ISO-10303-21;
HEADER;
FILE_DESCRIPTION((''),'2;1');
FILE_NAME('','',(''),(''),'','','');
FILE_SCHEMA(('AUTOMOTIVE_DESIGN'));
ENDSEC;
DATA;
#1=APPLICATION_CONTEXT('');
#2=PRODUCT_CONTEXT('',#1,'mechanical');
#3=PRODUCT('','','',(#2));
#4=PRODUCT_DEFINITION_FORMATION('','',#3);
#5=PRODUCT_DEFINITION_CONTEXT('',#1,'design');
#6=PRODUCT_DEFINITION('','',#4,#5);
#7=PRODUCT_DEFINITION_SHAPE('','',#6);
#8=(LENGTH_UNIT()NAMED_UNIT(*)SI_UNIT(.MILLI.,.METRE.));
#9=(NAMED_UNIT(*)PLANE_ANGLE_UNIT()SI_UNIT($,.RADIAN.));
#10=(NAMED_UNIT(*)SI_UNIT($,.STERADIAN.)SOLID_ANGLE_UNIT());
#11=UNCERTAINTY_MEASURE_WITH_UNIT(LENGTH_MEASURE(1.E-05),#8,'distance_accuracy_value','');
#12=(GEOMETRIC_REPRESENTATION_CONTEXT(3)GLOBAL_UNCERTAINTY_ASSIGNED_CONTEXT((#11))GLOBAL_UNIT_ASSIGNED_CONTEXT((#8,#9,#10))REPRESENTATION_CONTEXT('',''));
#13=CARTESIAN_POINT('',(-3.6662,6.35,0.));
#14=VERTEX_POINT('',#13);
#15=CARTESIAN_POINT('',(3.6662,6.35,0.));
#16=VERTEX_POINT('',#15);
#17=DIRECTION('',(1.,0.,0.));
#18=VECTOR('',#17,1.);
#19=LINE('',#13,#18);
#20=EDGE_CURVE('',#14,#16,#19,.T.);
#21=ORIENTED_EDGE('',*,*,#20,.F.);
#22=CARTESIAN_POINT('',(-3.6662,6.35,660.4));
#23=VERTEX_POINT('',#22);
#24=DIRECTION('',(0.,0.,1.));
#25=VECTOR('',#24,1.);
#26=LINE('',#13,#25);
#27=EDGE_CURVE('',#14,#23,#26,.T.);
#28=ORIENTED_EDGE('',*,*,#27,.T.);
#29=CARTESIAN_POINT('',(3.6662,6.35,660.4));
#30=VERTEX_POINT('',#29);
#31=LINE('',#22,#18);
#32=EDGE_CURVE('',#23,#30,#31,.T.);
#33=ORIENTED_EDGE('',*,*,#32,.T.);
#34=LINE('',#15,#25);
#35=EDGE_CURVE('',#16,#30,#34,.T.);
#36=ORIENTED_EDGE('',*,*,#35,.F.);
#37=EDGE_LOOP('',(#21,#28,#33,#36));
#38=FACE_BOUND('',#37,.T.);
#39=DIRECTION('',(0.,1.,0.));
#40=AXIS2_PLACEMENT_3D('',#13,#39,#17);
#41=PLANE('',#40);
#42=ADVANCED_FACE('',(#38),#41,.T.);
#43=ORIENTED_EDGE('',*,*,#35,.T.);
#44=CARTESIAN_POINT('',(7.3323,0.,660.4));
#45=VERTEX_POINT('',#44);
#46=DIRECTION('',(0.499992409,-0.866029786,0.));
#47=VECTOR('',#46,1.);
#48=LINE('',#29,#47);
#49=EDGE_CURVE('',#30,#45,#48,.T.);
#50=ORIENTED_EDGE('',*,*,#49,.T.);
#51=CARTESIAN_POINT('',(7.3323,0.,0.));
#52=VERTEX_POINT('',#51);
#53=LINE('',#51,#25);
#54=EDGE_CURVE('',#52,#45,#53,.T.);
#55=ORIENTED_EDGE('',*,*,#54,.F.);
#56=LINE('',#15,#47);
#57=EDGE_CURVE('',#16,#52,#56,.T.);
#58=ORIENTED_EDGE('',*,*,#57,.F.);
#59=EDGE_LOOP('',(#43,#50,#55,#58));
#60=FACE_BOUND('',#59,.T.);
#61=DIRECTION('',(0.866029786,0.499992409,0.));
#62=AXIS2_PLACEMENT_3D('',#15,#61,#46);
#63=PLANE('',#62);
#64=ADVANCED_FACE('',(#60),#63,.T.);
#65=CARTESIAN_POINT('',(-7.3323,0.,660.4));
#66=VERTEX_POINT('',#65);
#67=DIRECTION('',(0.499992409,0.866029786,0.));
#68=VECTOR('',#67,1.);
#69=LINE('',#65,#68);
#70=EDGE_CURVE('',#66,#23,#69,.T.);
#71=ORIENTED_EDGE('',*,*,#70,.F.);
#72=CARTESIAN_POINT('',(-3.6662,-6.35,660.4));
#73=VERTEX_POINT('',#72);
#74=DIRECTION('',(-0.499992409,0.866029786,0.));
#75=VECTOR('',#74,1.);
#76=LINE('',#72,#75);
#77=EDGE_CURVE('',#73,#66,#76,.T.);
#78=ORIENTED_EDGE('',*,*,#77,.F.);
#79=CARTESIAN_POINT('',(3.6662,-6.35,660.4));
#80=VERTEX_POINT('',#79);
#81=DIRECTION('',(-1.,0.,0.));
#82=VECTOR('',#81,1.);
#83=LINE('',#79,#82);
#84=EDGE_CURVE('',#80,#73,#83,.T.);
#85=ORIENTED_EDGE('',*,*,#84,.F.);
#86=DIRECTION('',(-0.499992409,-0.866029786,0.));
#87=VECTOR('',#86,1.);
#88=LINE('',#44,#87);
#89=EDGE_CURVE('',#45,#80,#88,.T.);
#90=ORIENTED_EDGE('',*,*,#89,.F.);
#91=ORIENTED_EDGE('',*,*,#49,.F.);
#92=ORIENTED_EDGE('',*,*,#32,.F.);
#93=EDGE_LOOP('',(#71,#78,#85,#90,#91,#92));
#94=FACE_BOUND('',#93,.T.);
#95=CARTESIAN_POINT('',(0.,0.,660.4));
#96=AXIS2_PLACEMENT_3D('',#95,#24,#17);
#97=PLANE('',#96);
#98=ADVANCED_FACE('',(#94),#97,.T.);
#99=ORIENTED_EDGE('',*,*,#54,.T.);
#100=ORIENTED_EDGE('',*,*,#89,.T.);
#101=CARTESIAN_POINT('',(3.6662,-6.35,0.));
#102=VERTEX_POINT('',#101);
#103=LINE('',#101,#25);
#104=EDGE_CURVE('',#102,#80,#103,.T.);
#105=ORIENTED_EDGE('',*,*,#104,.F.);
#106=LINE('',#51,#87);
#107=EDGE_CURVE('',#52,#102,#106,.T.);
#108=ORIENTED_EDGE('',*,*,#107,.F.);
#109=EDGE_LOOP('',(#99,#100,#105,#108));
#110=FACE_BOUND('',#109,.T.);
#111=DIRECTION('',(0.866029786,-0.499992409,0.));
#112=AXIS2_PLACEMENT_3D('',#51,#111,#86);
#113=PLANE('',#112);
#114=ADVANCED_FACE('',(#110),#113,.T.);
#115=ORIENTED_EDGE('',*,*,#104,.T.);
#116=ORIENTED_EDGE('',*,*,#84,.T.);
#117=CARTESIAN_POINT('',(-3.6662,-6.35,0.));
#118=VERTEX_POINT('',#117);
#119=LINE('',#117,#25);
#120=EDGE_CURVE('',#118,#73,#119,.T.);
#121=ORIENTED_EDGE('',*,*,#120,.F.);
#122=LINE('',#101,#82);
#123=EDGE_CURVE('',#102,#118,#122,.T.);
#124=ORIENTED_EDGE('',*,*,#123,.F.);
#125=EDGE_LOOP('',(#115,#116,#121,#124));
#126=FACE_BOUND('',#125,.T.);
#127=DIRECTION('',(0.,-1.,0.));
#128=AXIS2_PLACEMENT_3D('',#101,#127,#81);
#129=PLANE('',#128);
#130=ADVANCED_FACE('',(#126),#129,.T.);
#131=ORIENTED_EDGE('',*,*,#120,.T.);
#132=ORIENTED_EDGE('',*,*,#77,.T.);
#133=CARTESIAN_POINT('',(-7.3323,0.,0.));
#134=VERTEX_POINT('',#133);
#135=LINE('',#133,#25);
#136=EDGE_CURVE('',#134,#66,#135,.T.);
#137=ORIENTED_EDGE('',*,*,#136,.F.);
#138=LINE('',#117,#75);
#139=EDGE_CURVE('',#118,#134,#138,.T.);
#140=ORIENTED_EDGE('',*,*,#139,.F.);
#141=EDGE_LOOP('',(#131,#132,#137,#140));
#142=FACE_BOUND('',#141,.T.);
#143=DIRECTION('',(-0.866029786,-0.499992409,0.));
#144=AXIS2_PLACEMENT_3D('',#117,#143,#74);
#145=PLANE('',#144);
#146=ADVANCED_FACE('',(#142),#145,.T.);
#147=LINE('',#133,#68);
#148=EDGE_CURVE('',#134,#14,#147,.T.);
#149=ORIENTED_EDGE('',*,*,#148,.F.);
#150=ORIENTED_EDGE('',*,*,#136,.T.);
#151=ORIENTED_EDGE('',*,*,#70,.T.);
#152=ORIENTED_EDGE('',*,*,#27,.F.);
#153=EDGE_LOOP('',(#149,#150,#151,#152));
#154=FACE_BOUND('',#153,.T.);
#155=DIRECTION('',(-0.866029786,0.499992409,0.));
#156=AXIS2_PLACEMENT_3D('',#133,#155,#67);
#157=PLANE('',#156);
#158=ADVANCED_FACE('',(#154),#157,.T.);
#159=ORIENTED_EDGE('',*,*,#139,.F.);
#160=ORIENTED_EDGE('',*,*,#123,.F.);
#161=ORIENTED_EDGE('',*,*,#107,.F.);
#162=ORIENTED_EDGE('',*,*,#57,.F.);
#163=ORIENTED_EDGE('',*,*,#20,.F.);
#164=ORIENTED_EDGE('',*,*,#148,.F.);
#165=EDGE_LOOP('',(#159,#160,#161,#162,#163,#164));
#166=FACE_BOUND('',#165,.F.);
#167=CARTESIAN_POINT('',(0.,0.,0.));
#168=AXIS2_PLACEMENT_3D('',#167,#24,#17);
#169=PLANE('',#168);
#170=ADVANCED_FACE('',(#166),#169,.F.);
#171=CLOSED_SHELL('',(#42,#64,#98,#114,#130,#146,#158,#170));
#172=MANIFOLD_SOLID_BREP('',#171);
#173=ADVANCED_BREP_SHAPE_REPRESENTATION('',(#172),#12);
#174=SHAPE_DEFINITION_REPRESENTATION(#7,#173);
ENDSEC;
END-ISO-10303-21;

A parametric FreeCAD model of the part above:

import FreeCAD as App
import Part
import Sketcher
from FreeCAD import Vector
Q = App.Units.Quantity


def add_polygon(sketch, points):
    """Adds a closed chain of lines whose ends are joined by coincident constraints."""
    first, n = sketch.GeometryCount, len(points)
    for a, b in zip(points, points[1:] + points[:1]):
        sketch.addGeometry(Part.LineSegment(App.Vector(*a, 0), App.Vector(*b, 0)), False)
    for i in range(n):
        sketch.addConstraint(Sketcher.Constraint("Coincident", first + i, 2, first + (i + 1) % n, 1))

doc = App.newDocument("Part")
body = doc.addObject("PartDesign::Body", "Body")

sketch1 = body.newObject("Sketcher::SketchObject", "Sketch")
sketch1.AttachmentSupport = (doc.getObject("XY_Plane"), [""])
sketch1.MapMode = "FlatFace"
add_polygon(sketch1, [(7.3323, 0), (3.6662, 6.35), (-3.6662, 6.35), (-7.3323, 0), (-3.6662, -6.35), (3.6662, -6.35)])
sketch1.addConstraint([
    Sketcher.Constraint("Horizontal", 1),
    Sketcher.Constraint("Horizontal", 4),
    Sketcher.Constraint("Symmetric", 0, 2, 3, 2, -1, 1),
    Sketcher.Constraint("Symmetric", 2, 2, 5, 2, -1, 1),
    Sketcher.Constraint("PointOnObject", 2, 2, -1),
    Sketcher.Constraint("Parallel", 2, 5),
    Sketcher.Constraint("Vertical", 1, 2, 3, 2),
    Sketcher.Constraint("DistanceY", 3, 2, 1, 2, Q("0.5 in")),
    Sketcher.Constraint("Angle", 0, Q("119.9995 deg")),
    Sketcher.Constraint("DistanceX", 2, 2, 0, 2, Q("0.433 in")),
])
pad1 = body.newObject("PartDesign::Pad", "Pad")
pad1.Profile = sketch1
pad1.Length = Q("26 in")

doc.recompute()
